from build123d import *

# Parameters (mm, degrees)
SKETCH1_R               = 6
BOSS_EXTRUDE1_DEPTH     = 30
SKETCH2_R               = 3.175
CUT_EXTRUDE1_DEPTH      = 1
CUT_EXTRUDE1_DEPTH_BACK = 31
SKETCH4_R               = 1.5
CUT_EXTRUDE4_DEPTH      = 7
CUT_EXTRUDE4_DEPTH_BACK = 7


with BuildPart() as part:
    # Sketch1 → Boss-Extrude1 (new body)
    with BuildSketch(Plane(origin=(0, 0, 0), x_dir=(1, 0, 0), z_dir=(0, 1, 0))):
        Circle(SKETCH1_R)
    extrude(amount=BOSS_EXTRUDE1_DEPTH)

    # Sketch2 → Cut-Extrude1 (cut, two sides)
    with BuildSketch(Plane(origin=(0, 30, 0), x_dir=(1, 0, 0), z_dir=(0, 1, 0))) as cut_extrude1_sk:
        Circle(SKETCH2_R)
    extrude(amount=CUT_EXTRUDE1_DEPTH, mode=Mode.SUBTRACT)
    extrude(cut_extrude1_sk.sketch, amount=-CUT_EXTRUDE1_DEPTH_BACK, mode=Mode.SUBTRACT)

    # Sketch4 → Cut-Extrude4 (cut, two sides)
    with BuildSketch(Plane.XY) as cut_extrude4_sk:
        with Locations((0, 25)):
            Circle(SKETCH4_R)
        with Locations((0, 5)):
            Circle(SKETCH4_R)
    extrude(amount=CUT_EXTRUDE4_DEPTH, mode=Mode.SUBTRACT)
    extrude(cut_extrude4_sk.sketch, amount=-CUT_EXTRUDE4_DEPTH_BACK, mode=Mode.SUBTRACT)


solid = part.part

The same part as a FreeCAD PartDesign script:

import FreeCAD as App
import Part
import Sketcher
from FreeCAD import Vector
Q = App.Units.Quantity

doc = App.newDocument("Part")
body = doc.addObject("PartDesign::Body", "Body")

# Sketch on XZ plane
sketch1 = doc.addObject("Sketcher::SketchObject", "Sketch")
body.addObject(sketch1)
sketch1.AttachmentSupport = (doc.XZ_Plane, [""])
sketch1.MapMode = "FlatFace"
sketch1.addGeometry(Part.Circle(Vector(0, 0, 0), Vector(0, 0, 1), 6), False)
sketch1.addConstraint([
    Sketcher.Constraint("Coincident", 0, 3, -1, 1),
    Sketcher.Constraint("Diameter", 0, Q("12 mm")),
])
pad1 = doc.addObject("PartDesign::Pad", "Pad")
body.addObject(pad1)
pad1.Profile = sketch1
pad1.Length = 30
pad1.Reversed = True

# Sketch on XZ plane
sketch2 = doc.addObject("Sketcher::SketchObject", "Sketch001")
body.addObject(sketch2)
sketch2.AttachmentSupport = (doc.XZ_Plane, [""])
sketch2.MapMode = "FlatFace"
sketch2.AttachmentOffset = App.Placement(Vector(0, 0, -30), App.Rotation())
sketch2.addGeometry(Part.Circle(Vector(0, 0, 0), Vector(0, 0, 1), 3.2), False)
sketch2.addConstraint([
    Sketcher.Constraint("Coincident", 0, 3, -1, 1),
    Sketcher.Constraint("Diameter", 0, Q("6.35 mm")),
])
pocket1 = doc.addObject("PartDesign::Pocket", "Pocket")
body.addObject(pocket1)
pocket1.Profile = sketch2
pocket1.Type = "ThroughAll"
pocket1.Midplane = True

# Sketch on XY plane
sketch3 = doc.addObject("Sketcher::SketchObject", "Sketch002")
body.addObject(sketch3)
sketch3.AttachmentSupport = (doc.XY_Plane, [""])
sketch3.MapMode = "FlatFace"
sketch3.addGeometry([
    Part.Circle(Vector(0, 25, 0), Vector(0, 0, 1), 1.5),
    Part.Circle(Vector(0, 5, 0), Vector(0, 0, 1), 1.5),
], False)
sketch3.addConstraint([
    Sketcher.Constraint("Equal", 0, 1),
    Sketcher.Constraint("PointOnObject", 0, 3, -2),
    Sketcher.Constraint("PointOnObject", 1, 3, -2),
    Sketcher.Constraint("Diameter", 0, Q("3 mm")),
    Sketcher.Constraint("DistanceY", -1, 1, 0, 3, Q("25 mm")),
    Sketcher.Constraint("DistanceY", -1, 1, 1, 3, Q("5 mm")),
])
pocket2 = doc.addObject("PartDesign::Pocket", "Pocket001")
body.addObject(pocket2)
pocket2.Profile = sketch3
pocket2.Type = "ThroughAll"
pocket2.Midplane = True

doc.recompute()
